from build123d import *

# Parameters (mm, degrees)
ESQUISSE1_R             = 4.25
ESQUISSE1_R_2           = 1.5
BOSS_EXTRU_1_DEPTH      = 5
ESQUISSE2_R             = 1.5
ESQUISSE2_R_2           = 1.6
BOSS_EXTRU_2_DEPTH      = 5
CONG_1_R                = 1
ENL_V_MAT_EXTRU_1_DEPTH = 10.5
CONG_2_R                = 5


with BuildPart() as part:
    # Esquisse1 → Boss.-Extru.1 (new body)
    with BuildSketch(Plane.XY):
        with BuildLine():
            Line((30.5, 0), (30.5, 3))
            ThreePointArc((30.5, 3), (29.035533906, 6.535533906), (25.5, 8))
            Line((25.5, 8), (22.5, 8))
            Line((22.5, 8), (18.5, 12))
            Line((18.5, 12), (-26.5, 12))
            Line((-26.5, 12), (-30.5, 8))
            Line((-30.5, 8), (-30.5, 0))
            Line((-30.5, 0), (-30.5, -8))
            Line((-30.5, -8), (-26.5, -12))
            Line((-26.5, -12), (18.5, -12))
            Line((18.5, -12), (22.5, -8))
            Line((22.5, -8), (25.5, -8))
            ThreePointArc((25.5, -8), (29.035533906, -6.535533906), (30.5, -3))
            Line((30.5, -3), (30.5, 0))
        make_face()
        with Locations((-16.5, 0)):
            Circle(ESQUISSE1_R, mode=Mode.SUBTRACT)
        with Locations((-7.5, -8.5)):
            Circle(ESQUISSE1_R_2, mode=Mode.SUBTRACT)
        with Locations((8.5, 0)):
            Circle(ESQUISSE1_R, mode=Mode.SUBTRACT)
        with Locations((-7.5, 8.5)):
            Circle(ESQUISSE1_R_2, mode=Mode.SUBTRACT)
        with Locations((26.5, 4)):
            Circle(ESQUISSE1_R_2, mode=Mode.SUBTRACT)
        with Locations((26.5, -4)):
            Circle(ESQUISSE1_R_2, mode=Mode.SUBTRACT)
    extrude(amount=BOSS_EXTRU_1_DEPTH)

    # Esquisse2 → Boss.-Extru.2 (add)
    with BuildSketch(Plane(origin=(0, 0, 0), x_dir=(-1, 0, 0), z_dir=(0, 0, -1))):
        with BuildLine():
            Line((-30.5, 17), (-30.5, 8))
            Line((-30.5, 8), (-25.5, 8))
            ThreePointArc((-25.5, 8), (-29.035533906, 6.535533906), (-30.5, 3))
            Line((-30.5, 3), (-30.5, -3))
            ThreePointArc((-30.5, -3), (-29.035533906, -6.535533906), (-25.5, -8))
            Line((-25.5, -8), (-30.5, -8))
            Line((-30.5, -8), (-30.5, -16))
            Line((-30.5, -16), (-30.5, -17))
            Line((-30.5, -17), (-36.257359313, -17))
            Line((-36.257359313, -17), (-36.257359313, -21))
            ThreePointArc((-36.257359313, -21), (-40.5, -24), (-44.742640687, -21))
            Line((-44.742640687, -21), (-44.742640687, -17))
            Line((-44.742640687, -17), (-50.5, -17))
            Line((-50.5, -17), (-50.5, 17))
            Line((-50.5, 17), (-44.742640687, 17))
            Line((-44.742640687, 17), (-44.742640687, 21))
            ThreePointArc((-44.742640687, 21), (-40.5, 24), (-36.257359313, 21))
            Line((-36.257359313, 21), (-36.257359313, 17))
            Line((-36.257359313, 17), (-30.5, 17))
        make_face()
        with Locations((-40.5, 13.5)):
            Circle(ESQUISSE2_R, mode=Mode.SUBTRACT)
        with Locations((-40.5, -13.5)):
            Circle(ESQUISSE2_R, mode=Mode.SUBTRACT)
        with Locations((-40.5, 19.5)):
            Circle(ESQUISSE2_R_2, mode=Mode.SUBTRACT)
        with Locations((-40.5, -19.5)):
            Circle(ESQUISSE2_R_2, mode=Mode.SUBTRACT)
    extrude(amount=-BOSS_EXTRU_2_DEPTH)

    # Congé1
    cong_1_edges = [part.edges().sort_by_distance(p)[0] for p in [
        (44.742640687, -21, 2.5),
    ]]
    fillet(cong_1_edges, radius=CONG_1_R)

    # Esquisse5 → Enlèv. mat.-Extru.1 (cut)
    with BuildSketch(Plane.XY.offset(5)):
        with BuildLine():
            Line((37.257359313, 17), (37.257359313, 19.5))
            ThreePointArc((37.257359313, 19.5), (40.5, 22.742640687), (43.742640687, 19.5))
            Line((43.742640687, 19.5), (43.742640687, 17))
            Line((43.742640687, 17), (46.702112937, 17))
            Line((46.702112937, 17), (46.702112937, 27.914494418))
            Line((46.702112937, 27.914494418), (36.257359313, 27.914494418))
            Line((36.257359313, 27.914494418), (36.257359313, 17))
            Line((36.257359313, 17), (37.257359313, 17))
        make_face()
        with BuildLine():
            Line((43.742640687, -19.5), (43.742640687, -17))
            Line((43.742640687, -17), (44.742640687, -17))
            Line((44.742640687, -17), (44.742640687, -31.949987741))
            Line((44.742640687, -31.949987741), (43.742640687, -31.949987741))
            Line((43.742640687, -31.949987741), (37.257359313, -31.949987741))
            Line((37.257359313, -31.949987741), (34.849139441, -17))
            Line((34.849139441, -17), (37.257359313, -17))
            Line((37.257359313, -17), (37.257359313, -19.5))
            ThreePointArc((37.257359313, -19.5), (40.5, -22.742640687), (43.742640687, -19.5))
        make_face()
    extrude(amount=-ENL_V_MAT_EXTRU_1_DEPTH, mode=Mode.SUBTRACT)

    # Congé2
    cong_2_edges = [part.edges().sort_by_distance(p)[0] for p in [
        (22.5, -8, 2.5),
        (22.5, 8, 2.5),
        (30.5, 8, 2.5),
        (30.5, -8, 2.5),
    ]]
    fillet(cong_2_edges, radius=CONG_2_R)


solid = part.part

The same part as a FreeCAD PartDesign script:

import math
import FreeCAD as App
import Part
import Sketcher
from FreeCAD import Vector
Q = App.Units.Quantity


def edges_at(feature, points):
    """Names of the edges that pass closest to the given points."""
    edges = feature.Shape.Edges
    near = lambda p: min(range(len(edges)), key=lambda i: edges[i].distToShape(Part.Vertex(*p))[0])
    return sorted({f"Edge{near(p) + 1}" for p in points})

doc = App.newDocument("Part")
params = doc.addObject("Spreadsheet::Sheet", "Params")
for row, (alias, value) in enumerate([
    ("sketch1_diameter", "3 mm"),
    ("sketch1_radius", "5 mm"),
    ("sketch1_diameter2", "8.5 mm"),
    ("sketch1_width", "3 mm"),
    ("sketch1_width2", "45 mm"),
    ("pad1_length", "5 mm"),
    ("sketch2_diameter", "3 mm"),
    ("sketch2_radius", "5 mm"),
    ("sketch2_diameter2", "3.2 mm"),
    ("sketch2_radius2", "4.5 mm"),
    ("sketch2_height", "9 mm"),
    ("pad2_length", "5 mm"),
    ("fillet_radius", "1 mm"),
    ("sketch3_width", "1 mm"),
    ("sketch3_height", "2.5 mm"),
    ("pocket1_length", "10.5 mm"),
    ("fillet2_radius", "5 mm"),
], start=1):
    params.set(f"A{row}", alias)
    params.set(f"B{row}", "=" + value)
    params.setAlias(f"B{row}", alias)

body = doc.addObject("PartDesign::Body", "Body")

# Sketch on XY plane
sketch1 = body.newObject("Sketcher::SketchObject", "Sketch")
sketch1.AttachmentSupport = (doc.getObject("XY_Plane"), [""])
sketch1.MapMode = "FlatFace"
sketch1.addGeometry(Part.ArcOfCircle(Part.Circle(Vector(25.5, 3, 0), Vector(0, 0, 1), 5), math.radians(0), math.radians(90)), False)
sketch1.addGeometry(Part.LineSegment(Vector(25.5, 8, 0), Vector(22.5, 8, 0)), False)
sketch1.addGeometry(Part.LineSegment(Vector(22.5, 8, 0), Vector(18.5, 12, 0)), False)
sketch1.addGeometry(Part.LineSegment(Vector(18.5, 12, 0), Vector(-26.5, 12, 0)), False)
sketch1.addGeometry(Part.LineSegment(Vector(-26.5, 12, 0), Vector(-30.5, 8, 0)), False)
sketch1.addGeometry(Part.LineSegment(Vector(-30.5, 8, 0), Vector(-30.5, -8, 0)), False)
sketch1.addGeometry(Part.LineSegment(Vector(-30.5, -8, 0), Vector(-26.5, -12, 0)), False)
sketch1.addGeometry(Part.LineSegment(Vector(-26.5, -12, 0), Vector(18.5, -12, 0)), False)
sketch1.addGeometry(Part.LineSegment(Vector(18.5, -12, 0), Vector(22.5, -8, 0)), False)
sketch1.addGeometry(Part.LineSegment(Vector(22.5, -8, 0), Vector(25.5, -8, 0)), False)
sketch1.addGeometry(Part.ArcOfCircle(Part.Circle(Vector(25.5, -3, 0), Vector(0, 0, 1), 5), math.radians(-90), math.radians(0)), False)
sketch1.addGeometry(Part.LineSegment(Vector(30.5, -3, 0), Vector(30.5, 3, 0)), False)
sketch1.addGeometry(Part.Circle(Vector(-7.5, -8.5, 0), Vector(0, 0, 1), 1.5), False)
sketch1.addGeometry(Part.Circle(Vector(26.5, -4, 0), Vector(0, 0, 1), 1.5), False)
sketch1.addGeometry(Part.Circle(Vector(-16.5, 0, 0), Vector(0, 0, 1), 4.2), False)
sketch1.addGeometry(Part.Circle(Vector(-7.5, 8.5, 0), Vector(0, 0, 1), 1.5), False)
sketch1.addGeometry(Part.Circle(Vector(8.5, 0, 0), Vector(0, 0, 1), 4.2), False)
sketch1.addGeometry(Part.Circle(Vector(26.5, 4, 0), Vector(0, 0, 1), 1.5), False)
sketch1.addConstraint(Sketcher.Constraint("Tangent", 0, 2, 1, 1))
sketch1.addConstraint(Sketcher.Constraint("Coincident", 1, 2, 2, 1))
sketch1.addConstraint(Sketcher.Constraint("Coincident", 2, 2, 3, 1))
sketch1.addConstraint(Sketcher.Constraint("Coincident", 3, 2, 4, 1))
sketch1.addConstraint(Sketcher.Constraint("Coincident", 4, 2, 5, 1))
sketch1.addConstraint(Sketcher.Constraint("Coincident", 5, 2, 6, 1))
sketch1.addConstraint(Sketcher.Constraint("Coincident", 6, 2, 7, 1))
sketch1.addConstraint(Sketcher.Constraint("Coincident", 7, 2, 8, 1))
sketch1.addConstraint(Sketcher.Constraint("Coincident", 8, 2, 9, 1))
sketch1.addConstraint(Sketcher.Constraint("Tangent", 9, 2, 10, 1))
sketch1.addConstraint(Sketcher.Constraint("Tangent", 10, 2, 11, 1))
sketch1.addConstraint(Sketcher.Constraint("Tangent", 11, 2, 0, 1))
sketch1.addConstraint(Sketcher.Constraint("Horizontal", 1))
sketch1.addConstraint(Sketcher.Constraint("Horizontal", 3))
sketch1.addConstraint(Sketcher.Constraint("Vertical", 5))
sketch1.addConstraint(Sketcher.Constraint("Horizontal", 7))
sketch1.addConstraint(Sketcher.Constraint("Horizontal", 9))
sketch1.addConstraint(Sketcher.Constraint("Vertical", 11))
sketch1.addConstraint(Sketcher.Constraint("Equal", 0, 10))
sketch1.addConstraint(Sketcher.Constraint("Equal", 12, 13))
sketch1.addConstraint(Sketcher.Constraint("Equal", 13, 15))
sketch1.addConstraint(Sketcher.Constraint("Equal", 14, 16))
sketch1.addConstraint(Sketcher.Constraint("Equal", 15, 17))
sketch1.addConstraint(Sketcher.Constraint("Symmetric", 12, 3, 15, 3, -1))
sketch1.addConstraint(Sketcher.Constraint("Symmetric", 13, 3, 17, 3, -1))
sketch1.addConstraint(Sketcher.Constraint("Symmetric", 3, 2, 6, 2, -1))
sketch1.addConstraint(Sketcher.Constraint("Symmetric", 1, 2, 8, 2, -1))
sketch1.addConstraint(Sketcher.Constraint("PointOnObject", 14, 3, -1))
sketch1.addConstraint(Sketcher.Constraint("PointOnObject", 16, 3, -1))
sketch1.addConstraint(Sketcher.Constraint("Perpendicular", 2, 4))
sketch1.addConstraint(Sketcher.Constraint("Perpendicular", 4, 6))
sketch1.addConstraint(Sketcher.Constraint("Perpendicular", 6, 8))
sketch1.addConstraint(Sketcher.Constraint("Horizontal", 1, 2, 4, 2))
sketch1.addConstraint(Sketcher.Constraint("Horizontal", 5, 2, 8, 2))
sketch1.addConstraint(Sketcher.Constraint("Diameter", 12, Q("3 mm")))
sketch1.addConstraint(Sketcher.Constraint("Radius", 0, Q("5 mm")))
sketch1.addConstraint(Sketcher.Constraint("Diameter", 14, Q("8.5 mm")))
sketch1.addConstraint(Sketcher.Constraint("DistanceX", 1, 2, 1, 1, Q("3 mm")))
sketch1.addConstraint(Sketcher.Constraint("DistanceX", 3, 2, 3, 1, Q("45 mm")))
sketch1.addConstraint(Sketcher.Constraint("DistanceY", 5, 2, 5, 1, Q("16 mm")))
sketch1.addConstraint(Sketcher.Constraint("DistanceY", 13, 3, -1, 1, Q("4 mm")))
sketch1.addConstraint(Sketcher.Constraint("DistanceY", -1, 1, 2, 2, Q("12 mm")))
sketch1.addConstraint(Sketcher.Constraint("DistanceX", 12, 3, 10, 3, Q("33 mm")))
sketch1.addConstraint(Sketcher.Constraint("DistanceX", 10, 3, 13, 3, Q("1 mm")))
sketch1.addConstraint(Sketcher.Constraint("DistanceX", 14, 3, 12, 3, Q("9 mm")))
sketch1.addConstraint(Sketcher.Constraint("DistanceY", 12, 3, 15, 3, Q("17 mm")))
sketch1.addConstraint(Sketcher.Constraint("DistanceX", 16, 3, 0, 3, Q("17 mm")))
sketch1.addConstraint(Sketcher.Constraint("DistanceX", -1, 1, 0, 3, Q("25.5 mm")))
sketch1.setExpression("Constraints[34]", "Params.sketch1_diameter")
sketch1.setExpression("Constraints[35]", "Params.sketch1_radius")
sketch1.setExpression("Constraints[36]", "Params.sketch1_diameter2")
sketch1.setExpression("Constraints[37]", "Params.sketch1_width")
sketch1.setExpression("Constraints[38]", "Params.sketch1_width2")
pad1 = body.newObject("PartDesign::Pad", "Pad")
pad1.Profile = sketch1
pad1.setExpression("Length", "Params.pad1_length")

# Sketch on XY plane
sketch2 = body.newObject("Sketcher::SketchObject", "Sketch001")
sketch2.AttachmentSupport = (doc.getObject("XY_Plane"), [""])
sketch2.MapMode = "FlatFace"
sketch2.addGeometry(Part.LineSegment(Vector(30.5, 8, 0), Vector(30.5, 17, 0)), False)
sketch2.addGeometry(Part.LineSegment(Vector(30.5, 17, 0), Vector(36.3, 17, 0)), False)
sketch2.addGeometry(Part.LineSegment(Vector(36.3, 17, 0), Vector(36.3, 21, 0)), False)
sketch2.addGeometry(Part.ArcOfCircle(Part.Circle(Vector(40.5, 19.5, 0), Vector(0, 0, 1), 4.5), math.radians(19), math.radians(161)), False)
sketch2.addGeometry(Part.LineSegment(Vector(44.7, 21, 0), Vector(44.7, 17, 0)), False)
sketch2.addGeometry(Part.LineSegment(Vector(44.7, 17, 0), Vector(50.5, 17, 0)), False)
sketch2.addGeometry(Part.LineSegment(Vector(50.5, 17, 0), Vector(50.5, -17, 0)), False)
sketch2.addGeometry(Part.LineSegment(Vector(50.5, -17, 0), Vector(44.7, -17, 0)), False)
sketch2.addGeometry(Part.LineSegment(Vector(44.7, -17, 0), Vector(44.7, -21, 0)), False)
sketch2.addGeometry(Part.ArcOfCircle(Part.Circle(Vector(40.5, -19.5, 0), Vector(0, 0, 1), 4.5), math.radians(-161), math.radians(-19)), False)
sketch2.addGeometry(Part.LineSegment(Vector(36.3, -21, 0), Vector(36.3, -17, 0)), False)
sketch2.addGeometry(Part.LineSegment(Vector(36.3, -17, 0), Vector(30.5, -17, 0)), False)
sketch2.addGeometry(Part.LineSegment(Vector(30.5, -17, 0), Vector(30.5, -8, 0)), False)
sketch2.addGeometry(Part.LineSegment(Vector(30.5, -8, 0), Vector(25.5, -8, 0)), False)
sketch2.addGeometry(Part.ArcOfCircle(Part.Circle(Vector(25.5, -3, 0), Vector(0, 0, 1), 5), math.radians(-90), math.radians(0)), False)
sketch2.addGeometry(Part.LineSegment(Vector(30.5, -3, 0), Vector(30.5, 3, 0)), False)
sketch2.addGeometry(Part.ArcOfCircle(Part.Circle(Vector(25.5, 3, 0), Vector(0, 0, 1), 5), math.radians(0), math.radians(90)), False)
sketch2.addGeometry(Part.LineSegment(Vector(25.5, 8, 0), Vector(30.5, 8, 0)), False)
sketch2.addGeometry(Part.Circle(Vector(40.5, -19.5, 0), Vector(0, 0, 1), 1.6), False)
sketch2.addGeometry(Part.Circle(Vector(40.5, -13.5, 0), Vector(0, 0, 1), 1.5), False)
sketch2.addGeometry(Part.Circle(Vector(40.5, 13.5, 0), Vector(0, 0, 1), 1.5), False)
sketch2.addGeometry(Part.Circle(Vector(40.5, 19.5, 0), Vector(0, 0, 1), 1.6), False)
sketch2.addConstraint(Sketcher.Constraint("Coincident", 0, 2, 1, 1))
sketch2.addConstraint(Sketcher.Constraint("Coincident", 1, 2, 2, 1))
sketch2.addConstraint(Sketcher.Constraint("Coincident", 2, 2, 3, 2))
sketch2.addConstraint(Sketcher.Constraint("Coincident", 3, 1, 4, 1))
sketch2.addConstraint(Sketcher.Constraint("Coincident", 4, 2, 5, 1))
sketch2.addConstraint(Sketcher.Constraint("Coincident", 5, 2, 6, 1))
sketch2.addConstraint(Sketcher.Constraint("Coincident", 6, 2, 7, 1))
sketch2.addConstraint(Sketcher.Constraint("Coincident", 7, 2, 8, 1))
sketch2.addConstraint(Sketcher.Constraint("Coincident", 8, 2, 9, 2))
sketch2.addConstraint(Sketcher.Constraint("Coincident", 9, 1, 10, 1))
sketch2.addConstraint(Sketcher.Constraint("Coincident", 10, 2, 11, 1))
sketch2.addConstraint(Sketcher.Constraint("Coincident", 11, 2, 12, 1))
sketch2.addConstraint(Sketcher.Constraint("Coincident", 12, 2, 13, 1))
sketch2.addConstraint(Sketcher.Constraint("Tangent", 13, 2, 14, 1))
sketch2.addConstraint(Sketcher.Constraint("Tangent", 14, 2, 15, 1))
sketch2.addConstraint(Sketcher.Constraint("Tangent", 15, 2, 16, 1))
sketch2.addConstraint(Sketcher.Constraint("Tangent", 16, 2, 17, 1))
sketch2.addConstraint(Sketcher.Constraint("Coincident", 17, 2, 0, 1))
sketch2.addConstraint(Sketcher.Constraint("Vertical", 0))
sketch2.addConstraint(Sketcher.Constraint("Horizontal", 1))
sketch2.addConstraint(Sketcher.Constraint("Vertical", 2))
sketch2.addConstraint(Sketcher.Constraint("Vertical", 4))
sketch2.addConstraint(Sketcher.Constraint("Horizontal", 5))
sketch2.addConstraint(Sketcher.Constraint("Vertical", 6))
sketch2.addConstraint(Sketcher.Constraint("Horizontal", 7))
sketch2.addConstraint(Sketcher.Constraint("Vertical", 8))
sketch2.addConstraint(Sketcher.Constraint("Vertical", 10))
sketch2.addConstraint(Sketcher.Constraint("Horizontal", 11))
sketch2.addConstraint(Sketcher.Constraint("Vertical", 12))
sketch2.addConstraint(Sketcher.Constraint("Horizontal", 13))
sketch2.addConstraint(Sketcher.Constraint("Vertical", 15))
sketch2.addConstraint(Sketcher.Constraint("Horizontal", 17))
sketch2.addConstraint(Sketcher.Constraint("Coincident", 18, 3, 9, 3))
sketch2.addConstraint(Sketcher.Constraint("Coincident", 21, 3, 3, 3))
sketch2.addConstraint(Sketcher.Constraint("Equal", 3, 9))
sketch2.addConstraint(Sketcher.Constraint("Equal", 14, 16))
sketch2.addConstraint(Sketcher.Constraint("Equal", 19, 20))
sketch2.addConstraint(Sketcher.Constraint("Equal", 18, 21))
sketch2.addConstraint(Sketcher.Constraint("Symmetric", 3, 3, 9, 3, -1))
sketch2.addConstraint(Sketcher.Constraint("Symmetric", 19, 3, 20, 3, -1))
sketch2.addConstraint(Sketcher.Constraint("Symmetric", 4, 2, 7, 2, -1))
sketch2.addConstraint(Sketcher.Constraint("Symmetric", 1, 2, 10, 2, -1))
sketch2.addConstraint(Sketcher.Constraint("Symmetric", 12, 2, 17, 2, -1))
sketch2.addConstraint(Sketcher.Constraint("Horizontal", 2, 2, 3, 1))
sketch2.addConstraint(Sketcher.Constraint("Horizontal", 1, 2, 4, 2))
sketch2.addConstraint(Sketcher.Constraint("Vertical", 18, 3, 19, 3))
sketch2.addConstraint(Sketcher.Constraint("Vertical", 12, 2, 14, 2))
sketch2.addConstraint(Sketcher.Constraint("Equal", 1, 5))
sketch2.addConstraint(Sketcher.Constraint("Diameter", 19, Q("3 mm")))
sketch2.addConstraint(Sketcher.Constraint("Radius", 14, Q("5 mm")))
sketch2.addConstraint(Sketcher.Constraint("Diameter", 18, Q("3.2 mm")))
sketch2.addConstraint(Sketcher.Constraint("Radius", 3, Q("4.5 mm")))
sketch2.addConstraint(Sketcher.Constraint("DistanceY", 0, 1, 0, 2, Q("9 mm")))
sketch2.addConstraint(Sketcher.Constraint("DistanceY", 2, 1, 2, 2, Q("4 mm")))
sketch2.addConstraint(Sketcher.Constraint("DistanceY", 6, 2, 6, 1, Q("34 mm")))
sketch2.addConstraint(Sketcher.Constraint("DistanceY", 9, 3, 3, 3, Q("39 mm")))
sketch2.addConstraint(Sketcher.Constraint("DistanceX", 14, 3, 9, 3, Q("15 mm")))
sketch2.addConstraint(Sketcher.Constraint("DistanceY", 9, 3, 19, 3, Q("6 mm")))
sketch2.addConstraint(Sketcher.Constraint("DistanceX", -1, 1, 3, 3, Q("40.5 mm")))
sketch2.setExpression("Constraints[48]", "Params.sketch2_diameter")
sketch2.setExpression("Constraints[49]", "Params.sketch2_radius")
sketch2.setExpression("Constraints[50]", "Params.sketch2_diameter2")
sketch2.setExpression("Constraints[51]", "Params.sketch2_radius2")
sketch2.setExpression("Constraints[52]", "Params.sketch2_height")
pad2 = body.newObject("PartDesign::Pad", "Pad001")
pad2.Profile = sketch2
pad2.setExpression("Length", "Params.pad2_length")
doc.recompute()

fillet = body.newObject("PartDesign::Fillet", "Fillet")
fillet.Base = (pad2, edges_at(pad2, [(44.743, -21, 2.5)]))
fillet.setExpression("Radius", "Params.fillet_radius")

# Sketch on XY plane
sketch3 = body.newObject("Sketcher::SketchObject", "Sketch002")
sketch3.AttachmentSupport = (doc.getObject("XY_Plane"), [""])
sketch3.MapMode = "FlatFace"
sketch3.AttachmentOffset = App.Placement(Vector(0, 0, 5), App.Rotation())
sketch3.addGeometry(Part.LineSegment(Vector(37.3, 17, 0), Vector(37.3, 19.5, 0)), False)
sketch3.addGeometry(Part.ArcOfCircle(Part.Circle(Vector(40.5, 19.5, 0), Vector(0, 0, 1), 3.2), math.radians(0), math.radians(180)), False)
sketch3.addGeometry(Part.LineSegment(Vector(43.7, 19.5, 0), Vector(43.7, 17, 0)), False)
sketch3.addGeometry(Part.LineSegment(Vector(43.7, 17, 0), Vector(46.7, 17, 0)), False)
sketch3.addGeometry(Part.LineSegment(Vector(46.7, 17, 0), Vector(46.7, 27.9, 0)), False)
sketch3.addGeometry(Part.LineSegment(Vector(46.7, 27.9, 0), Vector(36.3, 27.9, 0)), False)
sketch3.addGeometry(Part.LineSegment(Vector(36.3, 27.9, 0), Vector(36.3, 17, 0)), False)
sketch3.addGeometry(Part.LineSegment(Vector(36.3, 17, 0), Vector(37.3, 17, 0)), False)
sketch3.addGeometry(Part.LineSegment(Vector(43.7, -17, 0), Vector(43.7, -19.5, 0)), False)
sketch3.addGeometry(Part.ArcOfCircle(Part.Circle(Vector(40.5, -19.5, 0), Vector(0, 0, 1), 3.2), math.radians(180), math.radians(360)), False)
sketch3.addGeometry(Part.LineSegment(Vector(37.3, -19.5, 0), Vector(37.3, -17, 0)), False)
sketch3.addGeometry(Part.LineSegment(Vector(37.3, -17, 0), Vector(34.8, -17, 0)), False)
sketch3.addGeometry(Part.LineSegment(Vector(34.8, -17, 0), Vector(37.3, -31.9, 0)), False)
sketch3.addGeometry(Part.LineSegment(Vector(37.3, -31.9, 0), Vector(44.7, -31.9, 0)), False)
sketch3.addGeometry(Part.LineSegment(Vector(44.7, -31.9, 0), Vector(44.7, -17, 0)), False)
sketch3.addGeometry(Part.LineSegment(Vector(44.7, -17, 0), Vector(43.7, -17, 0)), False)
sketch3.addConstraint(Sketcher.Constraint("Tangent", 0, 2, 1, 2))
sketch3.addConstraint(Sketcher.Constraint("Tangent", 1, 1, 2, 1))
sketch3.addConstraint(Sketcher.Constraint("Coincident", 2, 2, 3, 1))
sketch3.addConstraint(Sketcher.Constraint("Coincident", 3, 2, 4, 1))
sketch3.addConstraint(Sketcher.Constraint("Coincident", 4, 2, 5, 1))
sketch3.addConstraint(Sketcher.Constraint("Coincident", 5, 2, 6, 1))
sketch3.addConstraint(Sketcher.Constraint("Coincident", 6, 2, 7, 1))
sketch3.addConstraint(Sketcher.Constraint("Coincident", 7, 2, 0, 1))
sketch3.addConstraint(Sketcher.Constraint("Tangent", 8, 2, 9, 2))
sketch3.addConstraint(Sketcher.Constraint("Tangent", 9, 1, 10, 1))
sketch3.addConstraint(Sketcher.Constraint("Coincident", 10, 2, 11, 1))
sketch3.addConstraint(Sketcher.Constraint("Coincident", 11, 2, 12, 1))
sketch3.addConstraint(Sketcher.Constraint("Coincident", 12, 2, 13, 1))
sketch3.addConstraint(Sketcher.Constraint("Coincident", 13, 2, 14, 1))
sketch3.addConstraint(Sketcher.Constraint("Coincident", 14, 2, 15, 1))
sketch3.addConstraint(Sketcher.Constraint("Coincident", 15, 2, 8, 1))
sketch3.addConstraint(Sketcher.Constraint("Vertical", 0))
sketch3.addConstraint(Sketcher.Constraint("Vertical", 2))
sketch3.addConstraint(Sketcher.Constraint("Horizontal", 3))
sketch3.addConstraint(Sketcher.Constraint("Vertical", 4))
sketch3.addConstraint(Sketcher.Constraint("Horizontal", 5))
sketch3.addConstraint(Sketcher.Constraint("Vertical", 6))
sketch3.addConstraint(Sketcher.Constraint("Horizontal", 7))
sketch3.addConstraint(Sketcher.Constraint("Vertical", 8))
sketch3.addConstraint(Sketcher.Constraint("Vertical", 10))
sketch3.addConstraint(Sketcher.Constraint("Horizontal", 11))
sketch3.addConstraint(Sketcher.Constraint("Horizontal", 13))
sketch3.addConstraint(Sketcher.Constraint("Vertical", 14))
sketch3.addConstraint(Sketcher.Constraint("Horizontal", 15))
sketch3.addConstraint(Sketcher.Constraint("Equal", 1, 9))
sketch3.addConstraint(Sketcher.Constraint("Symmetric", 1, 3, 9, 3, -1))
sketch3.addConstraint(Sketcher.Constraint("Horizontal", 3, 2, 6, 2))
sketch3.addConstraint(Sketcher.Constraint("Horizontal", 11, 2, 14, 2))
sketch3.addConstraint(Sketcher.Constraint("Vertical", 10, 2, 12, 2))
sketch3.addConstraint(Sketcher.Constraint("Equal", 7, 15))
sketch3.addConstraint(Sketcher.Constraint("Equal", 2, 8))
sketch3.addConstraint(Sketcher.Constraint("DistanceX", 7, 1, 7, 2, Q("1 mm")))
sketch3.addConstraint(Sketcher.Constraint("DistanceY", 0, 1, 0, 2, Q("2.5 mm")))
sketch3.addConstraint(Sketcher.Constraint("DistanceY", -1, 1, 2, 2, Q("17 mm")))
sketch3.addConstraint(Sketcher.Constraint("DistanceX", -1, 1, 1, 3, Q("40.5 mm")))
sketch3.addConstraint(Sketcher.Constraint("Radius", 1, Q("3.242641 mm")))
sketch3.addConstraint(Sketcher.Constraint("DistanceX", 11, 2, 11, 1, Q("2.40822 mm")))
sketch3.addConstraint(Sketcher.Constraint("Distance", 12, Q("15.14271 mm")))
sketch3.addConstraint(Sketcher.Constraint("DistanceX", 3, 1, 3, 2, Q("2.959472 mm")))
sketch3.addConstraint(Sketcher.Constraint("DistanceY", 4, 1, 4, 2, Q("10.914494 mm")))
sketch3.setExpression("Constraints[36]", "Params.sketch3_width")
sketch3.setExpression("Constraints[37]", "Params.sketch3_height")
pocket1 = body.newObject("PartDesign::Pocket", "Pocket")
pocket1.Profile = sketch3
pocket1.setExpression("Length", "Params.pocket1_length")
doc.recompute()

fillet2 = body.newObject("PartDesign::Fillet", "Fillet001")
fillet2.Base = (pocket1, edges_at(pocket1, [
    (22.5, -8, 2.5),
    (22.5, 8, 2.5),
    (30.5, 8, 2.5),
    (30.5, -8, 2.5),
]))
fillet2.setExpression("Radius", "Params.fillet2_radius")

doc.recompute()
